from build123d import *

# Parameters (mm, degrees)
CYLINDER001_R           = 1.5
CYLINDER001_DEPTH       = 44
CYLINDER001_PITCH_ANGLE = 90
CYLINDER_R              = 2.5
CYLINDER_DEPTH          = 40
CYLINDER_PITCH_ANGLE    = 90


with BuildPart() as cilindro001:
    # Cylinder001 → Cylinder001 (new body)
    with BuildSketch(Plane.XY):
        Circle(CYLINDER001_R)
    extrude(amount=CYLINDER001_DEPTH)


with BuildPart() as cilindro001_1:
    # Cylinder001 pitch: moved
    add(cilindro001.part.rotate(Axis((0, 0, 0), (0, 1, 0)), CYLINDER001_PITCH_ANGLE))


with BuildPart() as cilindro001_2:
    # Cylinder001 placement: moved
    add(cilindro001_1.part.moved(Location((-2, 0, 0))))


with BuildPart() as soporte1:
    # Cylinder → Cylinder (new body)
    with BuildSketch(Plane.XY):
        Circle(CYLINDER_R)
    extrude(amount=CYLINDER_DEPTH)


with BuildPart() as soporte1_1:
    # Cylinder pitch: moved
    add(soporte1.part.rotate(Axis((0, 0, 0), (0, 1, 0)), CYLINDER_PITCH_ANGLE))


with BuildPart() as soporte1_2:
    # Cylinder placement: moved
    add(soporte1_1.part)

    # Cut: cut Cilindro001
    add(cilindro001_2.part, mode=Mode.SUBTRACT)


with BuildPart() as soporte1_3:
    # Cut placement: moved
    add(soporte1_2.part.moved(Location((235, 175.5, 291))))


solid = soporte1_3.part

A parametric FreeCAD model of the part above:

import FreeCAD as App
import Part
import Sketcher
from FreeCAD import Vector

doc = App.newDocument("Part")
body = doc.addObject("PartDesign::Body", "Body")

# Sketch on XY plane
sketch1 = body.newObject("Sketcher::SketchObject", "Sketch")
sketch1.AttachmentSupport = (doc.getObject("XY_Plane"), [""])
sketch1.MapMode = "FlatFace"
sketch1.addGeometry(Part.Circle(Vector(0, 0, 0), Vector(0, 0, 1), 1.5), False)
sketch1.addConstraint([
    Sketcher.Constraint("Coincident", 0, 3, -1, 1),
    Sketcher.Constraint("Diameter", 0, 3.0),
])
pad1 = body.newObject("PartDesign::Pad", "Pad")
pad1.Profile = sketch1
pad1.Length = 44
body2 = doc.addObject("PartDesign::Body", "Body001")
doc.recompute()

body.Placement = App.Placement(Vector(0, 0, 0), App.Rotation(Vector(0, 1, 0), 90))
boolean = body2.newObject("PartDesign::Boolean", "Boolean")
boolean.Type = "Fuse"
boolean.addObjects([body])
body3 = doc.addObject("PartDesign::Body", "Body002")
doc.recompute()

body2.Placement = App.Placement(Vector(-2, 0, 0), App.Rotation(Vector(0, 0, 1), 0))
boolean2 = body3.newObject("PartDesign::Boolean", "Boolean001")
boolean2.Type = "Fuse"
boolean2.addObjects([body2])
body4 = doc.addObject("PartDesign::Body", "Body003")

# Sketch on XY plane
sketch2 = body4.newObject("Sketcher::SketchObject", "Sketch001")
sketch2.AttachmentSupport = (doc.getObject("XY_Plane003"), [""])
sketch2.MapMode = "FlatFace"
sketch2.addGeometry(Part.Circle(Vector(0, 0, 0), Vector(0, 0, 1), 2.5), False)
sketch2.addConstraint([
    Sketcher.Constraint("Coincident", 0, 3, -1, 1),
    Sketcher.Constraint("Diameter", 0, 5.0),
])
pad2 = body4.newObject("PartDesign::Pad", "Pad001")
pad2.Profile = sketch2
pad2.Length = 40
body5 = doc.addObject("PartDesign::Body", "Body004")
doc.recompute()

body4.Placement = App.Placement(Vector(0, 0, 0), App.Rotation(Vector(0, 1, 0), 90))
boolean3 = body5.newObject("PartDesign::Boolean", "Boolean002")
boolean3.Type = "Fuse"
boolean3.addObjects([body4])
doc.recompute()

boolean4 = body5.newObject("PartDesign::Boolean", "Boolean003")
boolean4.Type = "Cut"
boolean4.addObjects([body3])
body6 = doc.addObject("PartDesign::Body", "Body005")
doc.recompute()

body5.Placement = App.Placement(Vector(235, 175.5, 291), App.Rotation(Vector(0, 0, 1), 0))
boolean5 = body6.newObject("PartDesign::Boolean", "Boolean004")
boolean5.Type = "Fuse"
boolean5.addObjects([body5])

doc.recompute()
